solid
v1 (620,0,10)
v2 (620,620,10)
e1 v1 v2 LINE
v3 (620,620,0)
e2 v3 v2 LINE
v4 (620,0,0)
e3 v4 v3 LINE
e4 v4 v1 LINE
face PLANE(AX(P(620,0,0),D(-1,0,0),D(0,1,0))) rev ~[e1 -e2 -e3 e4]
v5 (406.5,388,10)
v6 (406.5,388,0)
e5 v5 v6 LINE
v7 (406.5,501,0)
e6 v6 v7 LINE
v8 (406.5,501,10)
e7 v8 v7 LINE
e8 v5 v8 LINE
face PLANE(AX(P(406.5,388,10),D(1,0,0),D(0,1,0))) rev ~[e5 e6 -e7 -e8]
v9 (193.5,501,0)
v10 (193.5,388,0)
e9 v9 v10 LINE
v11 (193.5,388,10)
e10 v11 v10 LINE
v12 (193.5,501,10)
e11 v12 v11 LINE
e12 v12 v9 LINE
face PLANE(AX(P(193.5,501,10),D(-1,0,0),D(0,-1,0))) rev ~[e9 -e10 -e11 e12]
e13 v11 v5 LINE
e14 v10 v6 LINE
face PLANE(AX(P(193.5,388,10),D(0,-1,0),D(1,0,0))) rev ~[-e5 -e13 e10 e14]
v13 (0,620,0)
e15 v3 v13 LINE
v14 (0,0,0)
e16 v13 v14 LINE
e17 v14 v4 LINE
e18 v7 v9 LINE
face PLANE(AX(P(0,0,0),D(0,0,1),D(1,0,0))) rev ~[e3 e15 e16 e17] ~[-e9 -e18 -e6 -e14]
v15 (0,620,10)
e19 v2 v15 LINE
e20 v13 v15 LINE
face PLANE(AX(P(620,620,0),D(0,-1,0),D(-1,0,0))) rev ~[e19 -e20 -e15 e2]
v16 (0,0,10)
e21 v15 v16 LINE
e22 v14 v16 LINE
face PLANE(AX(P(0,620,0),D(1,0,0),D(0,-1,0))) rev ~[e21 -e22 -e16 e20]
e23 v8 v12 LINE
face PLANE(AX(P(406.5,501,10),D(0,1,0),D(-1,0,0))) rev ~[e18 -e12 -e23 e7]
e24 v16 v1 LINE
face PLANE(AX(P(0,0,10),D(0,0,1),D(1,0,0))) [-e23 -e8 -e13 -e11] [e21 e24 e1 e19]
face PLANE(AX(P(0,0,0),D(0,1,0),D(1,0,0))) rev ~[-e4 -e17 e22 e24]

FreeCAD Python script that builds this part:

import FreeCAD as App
import Part
import Sketcher
Q = App.Units.Quantity

doc = App.newDocument("Part")
params = doc.addObject("Spreadsheet::Sheet", "Params")
for row, (alias, value) in enumerate([
    ("sketch1_width", "620 mm"),
    ("pad1_length", "10 mm"),
    ("sketch2_width", "213 mm"),
    ("sketch2_height", "113 mm"),
], start=1):
    params.set(f"A{row}", alias)
    params.set(f"B{row}", "=" + value)
    params.setAlias(f"B{row}", alias)

body = doc.addObject("PartDesign::Body", "Body")

sketch1 = body.newObject("Sketcher::SketchObject", "Sketch")
sketch1.AttachmentSupport = (doc.getObject("XY_Plane"), [""])
sketch1.MapMode = "FlatFace"
sketch1.addGeometry(Part.LineSegment(App.Vector(0, 620, 0), App.Vector(0, 0, 0)), False)
sketch1.addGeometry(Part.LineSegment(App.Vector(0, 0, 0), App.Vector(620, 0, 0)), False)
sketch1.addGeometry(Part.LineSegment(App.Vector(620, 0, 0), App.Vector(620, 620, 0)), False)
sketch1.addGeometry(Part.LineSegment(App.Vector(620, 620, 0), App.Vector(0, 620, 0)), False)
sketch1.addConstraint(Sketcher.Constraint("Coincident", 0, 2, 1, 1))
sketch1.addConstraint(Sketcher.Constraint("Coincident", 1, 2, 2, 1))
sketch1.addConstraint(Sketcher.Constraint("Coincident", 2, 2, 3, 1))
sketch1.addConstraint(Sketcher.Constraint("Coincident", 3, 2, 0, 1))
sketch1.addConstraint(Sketcher.Constraint("Vertical", 0))
sketch1.addConstraint(Sketcher.Constraint("Horizontal", 1))
sketch1.addConstraint(Sketcher.Constraint("Vertical", 2))
sketch1.addConstraint(Sketcher.Constraint("Horizontal", 3))
sketch1.addConstraint(Sketcher.Constraint("Coincident", 0, 2, -1, 1))
sketch1.addConstraint(Sketcher.Constraint("Equal", 3, 0))
sketch1.addConstraint(Sketcher.Constraint("DistanceX", 1, 1, 1, 2, Q("620 mm")))
sketch1.setExpression("Constraints[10]", "Params.sketch1_width")
pad1 = body.newObject("PartDesign::Pad", "Pad")
pad1.Profile = sketch1
pad1.setExpression("Length", "Params.pad1_length")

sketch2 = body.newObject("Sketcher::SketchObject", "Sketch001")
sketch2.AttachmentSupport = (doc.getObject("XY_Plane"), [""])
sketch2.MapMode = "FlatFace"
sketch2.AttachmentOffset = App.Placement(App.Vector(0, 0, 10), App.Rotation())
sketch2.addGeometry(Part.LineSegment(App.Vector(193.5, 501, 0), App.Vector(193.5, 388, 0)), False)
sketch2.addGeometry(Part.LineSegment(App.Vector(193.5, 388, 0), App.Vector(406.5, 388, 0)), False)
sketch2.addGeometry(Part.LineSegment(App.Vector(406.5, 388, 0), App.Vector(406.5, 501, 0)), False)
sketch2.addGeometry(Part.LineSegment(App.Vector(406.5, 501, 0), App.Vector(193.5, 501, 0)), False)
sketch2.addConstraint(Sketcher.Constraint("Coincident", 0, 2, 1, 1))
sketch2.addConstraint(Sketcher.Constraint("Coincident", 1, 2, 2, 1))
sketch2.addConstraint(Sketcher.Constraint("Coincident", 2, 2, 3, 1))
sketch2.addConstraint(Sketcher.Constraint("Coincident", 3, 2, 0, 1))
sketch2.addConstraint(Sketcher.Constraint("Vertical", 0))
sketch2.addConstraint(Sketcher.Constraint("Horizontal", 1))
sketch2.addConstraint(Sketcher.Constraint("Vertical", 2))
sketch2.addConstraint(Sketcher.Constraint("Horizontal", 3))
sketch2.addConstraint(Sketcher.Constraint("DistanceX", 1, 1, 1, 2, Q("213 mm")))
sketch2.addConstraint(Sketcher.Constraint("DistanceY", 0, 2, 0, 1, Q("113 mm")))
sketch2.addConstraint(Sketcher.Constraint("DistanceX", -1, 1, 0, 2, Q("193.5 mm")))
sketch2.addConstraint(Sketcher.Constraint("DistanceY", -1, 1, 0, 2, Q("388 mm")))
sketch2.setExpression("Constraints[8]", "Params.sketch2_width")
sketch2.setExpression("Constraints[9]", "Params.sketch2_height")
pocket1 = body.newObject("PartDesign::Pocket", "Pocket")
pocket1.Profile = sketch2
pocket1.Type = "ThroughAll"

doc.recompute()
